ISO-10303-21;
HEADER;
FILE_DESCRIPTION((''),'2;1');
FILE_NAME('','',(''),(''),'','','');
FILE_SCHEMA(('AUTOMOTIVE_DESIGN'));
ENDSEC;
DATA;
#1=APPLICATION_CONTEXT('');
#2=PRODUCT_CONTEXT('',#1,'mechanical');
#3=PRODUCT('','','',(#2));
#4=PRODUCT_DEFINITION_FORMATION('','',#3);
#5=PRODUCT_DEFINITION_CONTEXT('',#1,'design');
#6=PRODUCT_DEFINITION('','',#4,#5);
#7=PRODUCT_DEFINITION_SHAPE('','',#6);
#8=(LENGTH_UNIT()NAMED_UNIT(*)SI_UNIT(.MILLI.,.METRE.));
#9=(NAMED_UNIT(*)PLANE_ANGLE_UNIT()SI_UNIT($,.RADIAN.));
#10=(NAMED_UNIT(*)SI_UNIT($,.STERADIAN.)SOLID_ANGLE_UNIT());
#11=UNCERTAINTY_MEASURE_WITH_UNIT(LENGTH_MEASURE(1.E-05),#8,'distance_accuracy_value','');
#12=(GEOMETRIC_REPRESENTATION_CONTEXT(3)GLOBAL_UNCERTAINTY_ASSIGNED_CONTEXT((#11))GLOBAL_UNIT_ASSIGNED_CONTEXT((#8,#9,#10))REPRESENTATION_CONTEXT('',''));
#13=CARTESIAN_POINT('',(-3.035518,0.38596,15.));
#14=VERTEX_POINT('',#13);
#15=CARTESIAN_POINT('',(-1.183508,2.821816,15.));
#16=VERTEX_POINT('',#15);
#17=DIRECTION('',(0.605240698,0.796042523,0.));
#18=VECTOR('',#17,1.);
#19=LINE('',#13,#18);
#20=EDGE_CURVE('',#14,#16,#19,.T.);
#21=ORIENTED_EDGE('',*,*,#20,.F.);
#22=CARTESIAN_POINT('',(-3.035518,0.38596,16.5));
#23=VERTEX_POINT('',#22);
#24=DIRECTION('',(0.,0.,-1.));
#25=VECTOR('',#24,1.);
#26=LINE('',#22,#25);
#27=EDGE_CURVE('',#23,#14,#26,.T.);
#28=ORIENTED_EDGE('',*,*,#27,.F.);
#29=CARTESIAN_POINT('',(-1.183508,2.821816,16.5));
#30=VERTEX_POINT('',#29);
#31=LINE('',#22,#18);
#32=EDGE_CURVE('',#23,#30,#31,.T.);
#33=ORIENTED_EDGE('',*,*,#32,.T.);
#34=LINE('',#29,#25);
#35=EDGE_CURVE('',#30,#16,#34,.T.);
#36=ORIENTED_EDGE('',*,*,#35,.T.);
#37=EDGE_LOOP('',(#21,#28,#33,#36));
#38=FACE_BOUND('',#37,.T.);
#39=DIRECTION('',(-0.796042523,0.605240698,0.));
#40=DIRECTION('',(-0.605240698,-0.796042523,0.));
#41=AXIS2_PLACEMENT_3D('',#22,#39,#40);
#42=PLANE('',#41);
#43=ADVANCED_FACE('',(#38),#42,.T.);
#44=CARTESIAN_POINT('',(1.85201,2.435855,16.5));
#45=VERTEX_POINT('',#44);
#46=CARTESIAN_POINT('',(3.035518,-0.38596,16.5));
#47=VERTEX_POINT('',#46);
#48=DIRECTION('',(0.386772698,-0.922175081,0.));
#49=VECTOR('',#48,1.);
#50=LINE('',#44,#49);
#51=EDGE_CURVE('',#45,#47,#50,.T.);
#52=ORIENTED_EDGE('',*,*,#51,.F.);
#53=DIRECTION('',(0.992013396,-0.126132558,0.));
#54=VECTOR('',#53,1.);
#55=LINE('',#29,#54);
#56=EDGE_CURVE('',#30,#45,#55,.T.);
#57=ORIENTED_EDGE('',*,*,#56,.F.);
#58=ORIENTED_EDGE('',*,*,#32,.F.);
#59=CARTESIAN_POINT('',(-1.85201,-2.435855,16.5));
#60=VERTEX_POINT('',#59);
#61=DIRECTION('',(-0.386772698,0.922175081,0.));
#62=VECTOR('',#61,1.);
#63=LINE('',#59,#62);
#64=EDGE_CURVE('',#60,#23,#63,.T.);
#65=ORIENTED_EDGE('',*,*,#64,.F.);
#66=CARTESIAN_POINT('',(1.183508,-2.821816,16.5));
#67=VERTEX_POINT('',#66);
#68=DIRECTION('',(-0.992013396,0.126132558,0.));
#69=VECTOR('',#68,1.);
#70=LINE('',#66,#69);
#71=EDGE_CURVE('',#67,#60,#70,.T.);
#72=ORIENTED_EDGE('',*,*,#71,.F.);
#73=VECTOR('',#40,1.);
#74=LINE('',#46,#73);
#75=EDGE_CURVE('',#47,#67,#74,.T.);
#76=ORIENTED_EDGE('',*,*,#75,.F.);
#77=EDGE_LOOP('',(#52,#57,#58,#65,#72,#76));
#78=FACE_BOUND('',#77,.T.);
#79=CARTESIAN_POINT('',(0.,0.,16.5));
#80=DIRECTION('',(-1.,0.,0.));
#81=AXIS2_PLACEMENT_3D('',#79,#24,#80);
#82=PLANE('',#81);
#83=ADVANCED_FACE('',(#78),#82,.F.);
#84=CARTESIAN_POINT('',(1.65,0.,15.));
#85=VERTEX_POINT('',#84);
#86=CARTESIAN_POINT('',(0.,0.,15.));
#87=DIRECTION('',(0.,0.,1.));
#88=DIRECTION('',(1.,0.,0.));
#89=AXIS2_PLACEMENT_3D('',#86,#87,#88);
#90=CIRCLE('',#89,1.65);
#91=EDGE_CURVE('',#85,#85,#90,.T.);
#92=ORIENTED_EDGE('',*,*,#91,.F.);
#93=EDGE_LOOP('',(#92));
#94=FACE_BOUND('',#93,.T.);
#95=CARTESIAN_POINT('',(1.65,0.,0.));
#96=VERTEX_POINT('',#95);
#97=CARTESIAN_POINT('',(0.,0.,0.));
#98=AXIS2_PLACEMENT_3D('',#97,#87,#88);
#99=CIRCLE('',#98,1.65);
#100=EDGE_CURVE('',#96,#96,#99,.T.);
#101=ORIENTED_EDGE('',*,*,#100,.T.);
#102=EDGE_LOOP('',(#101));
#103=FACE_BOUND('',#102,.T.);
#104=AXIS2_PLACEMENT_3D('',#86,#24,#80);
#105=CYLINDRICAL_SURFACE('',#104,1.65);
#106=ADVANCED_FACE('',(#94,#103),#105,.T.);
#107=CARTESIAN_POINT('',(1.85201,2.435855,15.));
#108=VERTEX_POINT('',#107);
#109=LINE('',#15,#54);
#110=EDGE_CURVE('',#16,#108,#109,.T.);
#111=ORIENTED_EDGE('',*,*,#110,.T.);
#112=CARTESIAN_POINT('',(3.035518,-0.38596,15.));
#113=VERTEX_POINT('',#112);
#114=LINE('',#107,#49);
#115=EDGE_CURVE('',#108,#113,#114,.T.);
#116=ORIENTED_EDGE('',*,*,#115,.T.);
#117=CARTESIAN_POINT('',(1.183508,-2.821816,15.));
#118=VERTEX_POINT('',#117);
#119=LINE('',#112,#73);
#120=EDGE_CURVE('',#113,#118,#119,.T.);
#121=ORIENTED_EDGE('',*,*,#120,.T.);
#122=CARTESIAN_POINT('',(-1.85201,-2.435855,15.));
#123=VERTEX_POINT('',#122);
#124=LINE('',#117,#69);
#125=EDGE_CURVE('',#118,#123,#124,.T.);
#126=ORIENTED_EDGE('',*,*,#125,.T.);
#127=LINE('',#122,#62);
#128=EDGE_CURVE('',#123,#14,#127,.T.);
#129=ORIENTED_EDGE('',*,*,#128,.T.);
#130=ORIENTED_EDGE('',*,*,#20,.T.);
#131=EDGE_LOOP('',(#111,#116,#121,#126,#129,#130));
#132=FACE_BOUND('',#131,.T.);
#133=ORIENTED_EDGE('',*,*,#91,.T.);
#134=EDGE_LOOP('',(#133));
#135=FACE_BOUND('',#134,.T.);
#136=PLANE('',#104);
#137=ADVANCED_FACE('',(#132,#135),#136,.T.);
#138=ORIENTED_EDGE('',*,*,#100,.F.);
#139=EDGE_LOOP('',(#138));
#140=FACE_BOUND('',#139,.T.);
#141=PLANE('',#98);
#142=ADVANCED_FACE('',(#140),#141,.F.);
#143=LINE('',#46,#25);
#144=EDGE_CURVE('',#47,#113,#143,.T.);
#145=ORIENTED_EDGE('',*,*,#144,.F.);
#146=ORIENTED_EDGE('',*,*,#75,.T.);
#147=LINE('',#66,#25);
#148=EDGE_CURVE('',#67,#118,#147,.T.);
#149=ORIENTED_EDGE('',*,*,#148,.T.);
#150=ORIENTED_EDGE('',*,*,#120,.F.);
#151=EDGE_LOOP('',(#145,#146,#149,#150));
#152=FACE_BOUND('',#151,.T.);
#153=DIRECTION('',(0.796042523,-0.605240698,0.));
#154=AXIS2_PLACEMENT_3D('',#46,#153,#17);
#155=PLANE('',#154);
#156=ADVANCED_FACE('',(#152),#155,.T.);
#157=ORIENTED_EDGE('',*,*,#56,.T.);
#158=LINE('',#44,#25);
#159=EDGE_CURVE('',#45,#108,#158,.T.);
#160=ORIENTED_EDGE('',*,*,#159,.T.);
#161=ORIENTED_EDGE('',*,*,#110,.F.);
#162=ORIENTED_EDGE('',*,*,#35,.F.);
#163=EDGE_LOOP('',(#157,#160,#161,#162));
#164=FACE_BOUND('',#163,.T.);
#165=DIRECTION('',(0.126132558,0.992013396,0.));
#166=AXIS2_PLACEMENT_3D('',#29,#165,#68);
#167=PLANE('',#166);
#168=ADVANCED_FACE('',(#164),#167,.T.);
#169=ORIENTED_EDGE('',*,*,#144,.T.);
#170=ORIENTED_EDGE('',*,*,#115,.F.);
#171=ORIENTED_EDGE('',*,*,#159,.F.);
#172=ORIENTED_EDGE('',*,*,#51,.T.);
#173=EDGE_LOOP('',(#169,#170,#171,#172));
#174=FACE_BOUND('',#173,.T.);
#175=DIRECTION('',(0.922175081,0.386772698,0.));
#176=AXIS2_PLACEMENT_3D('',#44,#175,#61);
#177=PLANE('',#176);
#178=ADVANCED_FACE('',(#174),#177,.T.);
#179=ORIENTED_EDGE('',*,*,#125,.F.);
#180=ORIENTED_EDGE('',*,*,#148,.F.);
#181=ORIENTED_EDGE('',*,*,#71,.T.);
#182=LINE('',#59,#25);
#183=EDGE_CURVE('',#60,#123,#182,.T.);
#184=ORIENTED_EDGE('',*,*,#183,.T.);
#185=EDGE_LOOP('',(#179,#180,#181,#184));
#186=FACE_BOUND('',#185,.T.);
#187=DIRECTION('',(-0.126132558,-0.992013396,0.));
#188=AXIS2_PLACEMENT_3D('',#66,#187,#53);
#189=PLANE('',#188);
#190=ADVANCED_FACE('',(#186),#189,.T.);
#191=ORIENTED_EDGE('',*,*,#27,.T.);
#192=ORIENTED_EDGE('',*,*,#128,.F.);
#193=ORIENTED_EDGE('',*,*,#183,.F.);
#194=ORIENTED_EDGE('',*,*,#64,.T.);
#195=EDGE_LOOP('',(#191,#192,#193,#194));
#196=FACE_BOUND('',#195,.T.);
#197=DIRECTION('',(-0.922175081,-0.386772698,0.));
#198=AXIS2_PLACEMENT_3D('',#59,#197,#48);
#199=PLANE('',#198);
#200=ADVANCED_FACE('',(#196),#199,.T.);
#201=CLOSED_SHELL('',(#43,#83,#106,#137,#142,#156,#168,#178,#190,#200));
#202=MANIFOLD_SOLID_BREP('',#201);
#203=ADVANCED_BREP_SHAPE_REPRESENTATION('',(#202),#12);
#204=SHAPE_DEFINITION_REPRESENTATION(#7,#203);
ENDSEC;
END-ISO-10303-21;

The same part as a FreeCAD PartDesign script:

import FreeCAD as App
import Part
import Sketcher
Q = App.Units.Quantity


def add_polygon(sketch, points):
    """Adds a closed chain of lines whose ends are joined by coincident constraints."""
    first, n = sketch.GeometryCount, len(points)
    for a, b in zip(points, points[1:] + points[:1]):
        sketch.addGeometry(Part.LineSegment(App.Vector(*a, 0), App.Vector(*b, 0)), False)
    for i in range(n):
        sketch.addConstraint(Sketcher.Constraint("Coincident", first + i, 2, first + (i + 1) % n, 1))

doc = App.newDocument("Part")
body = doc.addObject("PartDesign::Body", "Body")

sketch1 = body.newObject("Sketcher::SketchObject", "Sketch")
sketch1.AttachmentSupport = (doc.getObject("XY_Plane"), [""])
sketch1.MapMode = "FlatFace"
sketch1.addGeometry(Part.Circle(App.Vector(0, 0, 0), App.Vector(0, 0, 1), 1.65), False)
sketch1.addConstraint([
    Sketcher.Constraint("Coincident", 0, 3, -1, 1),
    Sketcher.Constraint("Diameter", 0, Q("3.3 mm")),
])
pad1 = body.newObject("PartDesign::Pad", "Pad")
pad1.Profile = sketch1
pad1.Length = 15

sketch2 = body.newObject("Sketcher::SketchObject", "Sketch001")
sketch2.AttachmentSupport = (doc.getObject("XY_Plane"), [""])
sketch2.MapMode = "FlatFace"
sketch2.AttachmentOffset = App.Placement(App.Vector(0, 0, 15), App.Rotation())
add_polygon(sketch2, [(-1.85201, -2.435855), (-3.035518, 0.38596), (-1.183508, 2.821816), (1.85201, 2.435855), (3.035518, -0.38596), (1.183508, -2.821816)])
sketch2.addConstraint([
    Sketcher.Constraint("Symmetric", 0, 2, 3, 2, -1, 1),
    Sketcher.Constraint("Symmetric", 1, 2, 4, 2, -1, 1),
    Sketcher.Constraint("Symmetric", 2, 2, 5, 2, -1, 1),
    Sketcher.Constraint("Equal", 0, 1),
    Sketcher.Constraint("Equal", 1, 2),
    Sketcher.Constraint("DistanceY", -1, 1, 0, 2, Q("0.38596 mm")),
    Sketcher.Constraint("DistanceX", -1, 1, 2, 2, Q("1.85201 mm")),
    Sketcher.Constraint("DistanceX", 0, 2, 1, 2, Q("1.85201 mm")),
    Sketcher.Constraint("DistanceY", 2, 2, 1, 2, Q("0.38596 mm")),
])
pad2 = body.newObject("PartDesign::Pad", "Pad001")
pad2.Profile = sketch2
pad2.Length = 1.5

doc.recompute()
